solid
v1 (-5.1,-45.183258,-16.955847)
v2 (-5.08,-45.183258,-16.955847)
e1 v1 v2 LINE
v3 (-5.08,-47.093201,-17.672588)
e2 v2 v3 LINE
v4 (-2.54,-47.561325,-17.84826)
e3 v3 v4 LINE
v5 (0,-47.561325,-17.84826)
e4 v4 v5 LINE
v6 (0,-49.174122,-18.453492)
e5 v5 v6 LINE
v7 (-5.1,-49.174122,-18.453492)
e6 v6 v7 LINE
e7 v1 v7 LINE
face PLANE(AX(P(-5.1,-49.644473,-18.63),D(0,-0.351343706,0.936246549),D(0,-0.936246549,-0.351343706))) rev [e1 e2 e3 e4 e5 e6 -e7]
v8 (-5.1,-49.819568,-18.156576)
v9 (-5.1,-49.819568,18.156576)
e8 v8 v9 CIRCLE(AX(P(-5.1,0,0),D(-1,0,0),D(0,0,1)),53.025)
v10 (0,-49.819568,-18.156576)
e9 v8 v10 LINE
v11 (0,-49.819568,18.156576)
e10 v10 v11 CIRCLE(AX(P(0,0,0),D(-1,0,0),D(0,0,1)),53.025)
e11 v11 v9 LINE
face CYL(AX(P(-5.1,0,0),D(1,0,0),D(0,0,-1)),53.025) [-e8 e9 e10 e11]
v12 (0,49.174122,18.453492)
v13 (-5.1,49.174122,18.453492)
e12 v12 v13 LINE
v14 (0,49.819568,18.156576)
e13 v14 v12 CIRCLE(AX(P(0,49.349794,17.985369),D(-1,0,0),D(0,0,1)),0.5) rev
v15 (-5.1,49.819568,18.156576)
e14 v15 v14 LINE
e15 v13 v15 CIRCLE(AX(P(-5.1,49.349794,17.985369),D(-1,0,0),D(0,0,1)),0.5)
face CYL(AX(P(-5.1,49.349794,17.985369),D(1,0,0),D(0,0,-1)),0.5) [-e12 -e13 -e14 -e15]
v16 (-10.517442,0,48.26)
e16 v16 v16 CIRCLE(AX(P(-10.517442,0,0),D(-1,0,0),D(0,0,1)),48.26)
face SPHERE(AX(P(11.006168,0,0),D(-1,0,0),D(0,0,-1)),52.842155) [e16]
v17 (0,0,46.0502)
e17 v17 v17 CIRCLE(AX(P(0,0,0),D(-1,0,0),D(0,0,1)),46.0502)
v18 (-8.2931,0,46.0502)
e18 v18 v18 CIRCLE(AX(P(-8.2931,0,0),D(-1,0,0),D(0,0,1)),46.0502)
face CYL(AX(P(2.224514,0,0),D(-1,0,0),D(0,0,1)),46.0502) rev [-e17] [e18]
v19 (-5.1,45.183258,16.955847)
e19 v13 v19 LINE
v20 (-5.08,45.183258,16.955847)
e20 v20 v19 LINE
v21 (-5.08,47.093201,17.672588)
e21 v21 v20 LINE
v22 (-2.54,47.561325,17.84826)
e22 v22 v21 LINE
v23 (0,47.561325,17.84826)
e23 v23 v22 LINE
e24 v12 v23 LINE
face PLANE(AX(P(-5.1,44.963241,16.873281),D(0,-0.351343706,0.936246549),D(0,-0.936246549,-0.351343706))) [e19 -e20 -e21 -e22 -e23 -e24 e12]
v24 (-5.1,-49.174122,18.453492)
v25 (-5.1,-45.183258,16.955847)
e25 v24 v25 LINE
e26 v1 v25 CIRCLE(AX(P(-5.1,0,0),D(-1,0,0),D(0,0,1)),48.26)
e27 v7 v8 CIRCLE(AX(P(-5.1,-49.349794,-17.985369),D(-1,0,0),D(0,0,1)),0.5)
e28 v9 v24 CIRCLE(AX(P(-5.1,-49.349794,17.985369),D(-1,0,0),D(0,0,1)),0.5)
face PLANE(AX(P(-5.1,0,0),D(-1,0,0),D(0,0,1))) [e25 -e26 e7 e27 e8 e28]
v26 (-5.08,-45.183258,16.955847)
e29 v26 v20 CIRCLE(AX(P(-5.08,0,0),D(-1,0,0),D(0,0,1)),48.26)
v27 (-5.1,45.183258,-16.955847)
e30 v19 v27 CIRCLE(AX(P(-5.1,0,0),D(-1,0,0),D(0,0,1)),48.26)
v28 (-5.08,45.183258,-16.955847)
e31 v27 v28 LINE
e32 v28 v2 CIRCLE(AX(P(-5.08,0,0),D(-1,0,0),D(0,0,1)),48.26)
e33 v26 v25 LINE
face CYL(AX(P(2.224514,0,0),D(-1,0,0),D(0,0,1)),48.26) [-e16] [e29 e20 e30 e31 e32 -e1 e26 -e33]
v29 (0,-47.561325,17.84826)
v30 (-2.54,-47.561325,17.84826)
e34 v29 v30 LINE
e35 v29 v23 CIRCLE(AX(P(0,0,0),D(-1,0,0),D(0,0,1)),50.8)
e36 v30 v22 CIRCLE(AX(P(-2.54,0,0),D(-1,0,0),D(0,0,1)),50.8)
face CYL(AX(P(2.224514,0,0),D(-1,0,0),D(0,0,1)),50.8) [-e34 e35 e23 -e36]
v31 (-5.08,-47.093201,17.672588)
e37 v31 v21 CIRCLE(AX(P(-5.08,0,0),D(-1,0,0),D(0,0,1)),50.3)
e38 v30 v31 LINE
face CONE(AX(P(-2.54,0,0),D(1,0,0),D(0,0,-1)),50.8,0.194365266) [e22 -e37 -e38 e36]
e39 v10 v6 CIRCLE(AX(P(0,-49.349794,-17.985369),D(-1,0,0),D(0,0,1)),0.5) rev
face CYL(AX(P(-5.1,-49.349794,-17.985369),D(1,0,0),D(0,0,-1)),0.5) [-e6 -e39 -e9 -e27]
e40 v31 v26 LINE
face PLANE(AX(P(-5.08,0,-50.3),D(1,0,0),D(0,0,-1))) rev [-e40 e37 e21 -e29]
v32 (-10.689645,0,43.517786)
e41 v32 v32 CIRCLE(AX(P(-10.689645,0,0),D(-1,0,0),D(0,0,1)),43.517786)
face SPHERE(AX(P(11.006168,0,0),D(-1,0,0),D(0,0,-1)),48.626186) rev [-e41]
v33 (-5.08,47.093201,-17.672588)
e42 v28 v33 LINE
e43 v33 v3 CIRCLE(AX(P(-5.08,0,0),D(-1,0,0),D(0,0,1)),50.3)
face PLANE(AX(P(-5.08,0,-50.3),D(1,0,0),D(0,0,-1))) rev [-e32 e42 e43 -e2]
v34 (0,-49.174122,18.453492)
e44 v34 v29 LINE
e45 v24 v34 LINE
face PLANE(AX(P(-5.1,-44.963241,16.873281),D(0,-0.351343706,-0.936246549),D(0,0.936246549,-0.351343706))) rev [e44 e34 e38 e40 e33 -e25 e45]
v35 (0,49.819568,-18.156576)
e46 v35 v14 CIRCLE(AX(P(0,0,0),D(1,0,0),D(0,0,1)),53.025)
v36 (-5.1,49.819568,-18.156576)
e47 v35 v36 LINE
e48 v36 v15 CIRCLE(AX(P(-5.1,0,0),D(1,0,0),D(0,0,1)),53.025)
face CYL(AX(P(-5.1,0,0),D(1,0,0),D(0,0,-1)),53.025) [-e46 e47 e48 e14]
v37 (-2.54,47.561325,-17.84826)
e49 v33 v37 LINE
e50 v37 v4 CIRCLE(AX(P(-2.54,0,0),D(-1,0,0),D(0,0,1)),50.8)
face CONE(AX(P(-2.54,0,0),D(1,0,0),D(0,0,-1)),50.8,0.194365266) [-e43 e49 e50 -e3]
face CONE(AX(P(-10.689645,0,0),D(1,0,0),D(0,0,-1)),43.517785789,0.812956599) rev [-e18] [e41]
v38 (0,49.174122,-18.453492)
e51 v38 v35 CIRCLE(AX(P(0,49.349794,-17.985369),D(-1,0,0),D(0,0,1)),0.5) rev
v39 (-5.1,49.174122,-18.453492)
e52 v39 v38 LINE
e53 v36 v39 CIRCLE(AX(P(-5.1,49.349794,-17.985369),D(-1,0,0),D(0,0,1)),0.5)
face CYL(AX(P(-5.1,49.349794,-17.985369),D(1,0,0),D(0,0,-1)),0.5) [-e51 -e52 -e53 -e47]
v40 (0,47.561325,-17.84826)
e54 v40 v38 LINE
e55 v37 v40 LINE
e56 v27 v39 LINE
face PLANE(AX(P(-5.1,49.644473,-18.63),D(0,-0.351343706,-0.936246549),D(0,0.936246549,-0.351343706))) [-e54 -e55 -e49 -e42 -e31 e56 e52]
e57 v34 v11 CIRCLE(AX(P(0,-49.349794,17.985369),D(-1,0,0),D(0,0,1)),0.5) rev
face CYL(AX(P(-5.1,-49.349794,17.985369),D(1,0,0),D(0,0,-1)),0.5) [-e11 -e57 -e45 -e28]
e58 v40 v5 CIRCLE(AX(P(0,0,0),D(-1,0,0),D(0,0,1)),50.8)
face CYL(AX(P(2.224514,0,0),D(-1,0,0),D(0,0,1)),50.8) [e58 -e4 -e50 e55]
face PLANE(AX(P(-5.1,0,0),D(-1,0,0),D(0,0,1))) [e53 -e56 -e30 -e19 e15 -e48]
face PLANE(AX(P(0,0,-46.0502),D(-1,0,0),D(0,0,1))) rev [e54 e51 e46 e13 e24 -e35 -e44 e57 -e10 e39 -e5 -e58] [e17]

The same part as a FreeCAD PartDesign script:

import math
import FreeCAD as App
import Part
import Sketcher
Q = App.Units.Quantity


def edges_at(feature, points):
    """Names of the edges that pass closest to the given points."""
    edges = feature.Shape.Edges
    near = lambda p: min(range(len(edges)), key=lambda i: edges[i].distToShape(Part.Vertex(*p))[0])
    return sorted({f"Edge{near(p) + 1}" for p in points})

doc = App.newDocument("Part")
params = doc.addObject("Spreadsheet::Sheet", "Params")
for row, (alias, value) in enumerate([
    ("sketch1_width", "2.54 mm"),
    ("sketch1_height", "2.04 mm"),
    ("revolution_angle", "360 deg"),
    ("sketch2_length", "5 mm"),
    ("pad1_length", "5.1 mm"),
    ("fillet_radius", "0.5 mm"),
    ("fillet2_radius", "0.5 mm"),
], start=1):
    params.set(f"A{row}", alias)
    params.set(f"B{row}", "=" + value)
    params.setAlias(f"B{row}", alias)

body = doc.addObject("PartDesign::Body", "Body")

sketch1 = body.newObject("Sketcher::SketchObject", "Sketch")
sketch1.AttachmentSupport = (doc.getObject("XZ_Plane"), [""])
sketch1.MapMode = "FlatFace"
sketch1.addGeometry([
    Part.LineSegment(App.Vector(-8.3, -46.1, 0), App.Vector(0, -46.1, 0)),
    Part.LineSegment(App.Vector(0, -46.1, 0), App.Vector(0, -50.8, 0)),
    Part.LineSegment(App.Vector(0, -50.8, 0), App.Vector(-2.5, -50.8, 0)),
    Part.LineSegment(App.Vector(-2.5, -50.8, 0), App.Vector(-5.1, -50.3, 0)),
    Part.LineSegment(App.Vector(-5.1, -50.3, 0), App.Vector(-5.1, -48.3, 0)),
    Part.LineSegment(App.Vector(-5.1, -48.3, 0), App.Vector(-10.5, -48.3, 0)),
    Part.ArcOfCircle(Part.Circle(App.Vector(11, 0, 0), App.Vector(0, 0, 1), 52.8), math.radians(180), math.radians(246)),
    Part.LineSegment(App.Vector(-41.8, 0, 0), App.Vector(-37.6, 0, 0)),
    Part.ArcOfCircle(Part.Circle(App.Vector(11, 0, 0), App.Vector(0, 0, 1), 48.6), math.radians(180), math.radians(244)),
    Part.LineSegment(App.Vector(-10.7, -43.5, 0), App.Vector(-8.3, -46.1, 0)),
], False)
sketch1.addConstraint([
    Sketcher.Constraint("Coincident", 0, 2, 1, 1),
    Sketcher.Constraint("Coincident", 1, 2, 2, 1),
    Sketcher.Constraint("Coincident", 2, 2, 3, 1),
    Sketcher.Constraint("Coincident", 3, 2, 4, 1),
    Sketcher.Constraint("Coincident", 4, 2, 5, 1),
    Sketcher.Constraint("Coincident", 5, 2, 6, 2),
    Sketcher.Constraint("Coincident", 6, 1, 7, 1),
    Sketcher.Constraint("Coincident", 7, 2, 8, 1),
    Sketcher.Constraint("Coincident", 8, 2, 9, 1),
    Sketcher.Constraint("Coincident", 9, 2, 0, 1),
    Sketcher.Constraint("Horizontal", 0),
    Sketcher.Constraint("Vertical", 1),
    Sketcher.Constraint("Horizontal", 2),
    Sketcher.Constraint("Vertical", 4),
    Sketcher.Constraint("Horizontal", 5),
    Sketcher.Constraint("Horizontal", 7),
    Sketcher.Constraint("Coincident", 8, 3, 6, 3),
    Sketcher.Constraint("PointOnObject", 6, 3, -1),
    Sketcher.Constraint("PointOnObject", 0, 2, -2),
    Sketcher.Constraint("PointOnObject", 6, 1, -1),
    Sketcher.Constraint("DistanceX", 2, 2, 2, 1, Q("2.54 mm")),
    Sketcher.Constraint("DistanceY", 4, 1, 4, 2, Q("2.04 mm")),
    Sketcher.Constraint("DistanceY", 1, 2, -1, 1, Q("50.8 mm")),
    Sketcher.Constraint("DistanceY", 3, 2, -1, 1, Q("50.3 mm")),
    Sketcher.Constraint("DistanceX", 3, 2, -1, 1, Q("5.08 mm")),
    Sketcher.Constraint("DistanceX", 0, 1, 0, 2, Q("8.2931 mm")),
    Sketcher.Constraint("DistanceY", 1, 2, 1, 1, Q("4.7498 mm")),
    Sketcher.Constraint("Radius", 6, Q("52.842155 mm")),
    Sketcher.Constraint("Radius", 8, Q("48.626186 mm")),
    Sketcher.Constraint("DistanceX", 5, 2, 5, 1, Q("5.437442 mm")),
    Sketcher.Constraint("Distance", 9, Q("3.486625 mm")),
])
sketch1.setExpression("Constraints[20]", "Params.sketch1_width")
sketch1.setExpression("Constraints[21]", "Params.sketch1_height")
revolution = body.newObject("PartDesign::Revolution", "Revolution")
revolution.Profile = sketch1
revolution.ReferenceAxis = (sketch1, ["H_Axis"])
revolution.setExpression("Angle", "Params.revolution_angle")

sketch2 = body.newObject("Sketcher::SketchObject", "Sketch001")
sketch2.AttachmentSupport = (doc.getObject("YZ_Plane"), [""])
sketch2.MapMode = "FlatFace"
sketch2.addGeometry([
    Part.LineSegment(App.Vector(49.6, 18.6, 0), App.Vector(45, 16.9, 0)),
    Part.ArcOfCircle(Part.Circle(App.Vector(0, 0, 0), App.Vector(0, 0, 1), 48), math.radians(-21), math.radians(21)),
    Part.LineSegment(App.Vector(45, -16.9, 0), App.Vector(49.6, -18.6, 0)),
    Part.ArcOfCircle(Part.Circle(App.Vector(0, 0, 0), App.Vector(0, 0, 1), 53), math.radians(-21), math.radians(21)),
], False)
sketch2.addConstraint([
    Sketcher.Constraint("Coincident", 0, 2, 1, 2),
    Sketcher.Constraint("Coincident", 1, 1, 2, 1),
    Sketcher.Constraint("Coincident", 2, 2, 3, 1),
    Sketcher.Constraint("Coincident", 3, 2, 0, 1),
    Sketcher.Constraint("Coincident", 1, 3, -1, 1),
    Sketcher.Constraint("Coincident", 3, 3, -1, 1),
    Sketcher.Constraint("Vertical", 0, 2, 1, 1),
    Sketcher.Constraint("Vertical", 2, 2, 3, 2),
    Sketcher.Constraint("Distance", 0, Q("5 mm")),
    Sketcher.Constraint("Radius", 1, Q("48.025 mm")),
    Sketcher.Constraint("DistanceY", 2, 2, -1, 1, Q("18.63 mm")),
    Sketcher.Constraint("DistanceX", -1, 1, 0, 2, Q("44.963241 mm")),
])
sketch2.setExpression("Constraints[8]", "Params.sketch2_length")
pad1 = body.newObject("PartDesign::Pad", "Pad")
pad1.Profile = sketch2
pad1.setExpression("Length", "Params.pad1_length")
pad1.Reversed = True
doc.recompute()

fillet = body.newObject("PartDesign::Fillet", "Fillet")
fillet.Base = (pad1, edges_at(pad1, [(-2.55, 49.644, -18.63), (-2.55, 49.644, 18.63)]))
fillet.setExpression("Radius", "Params.fillet_radius")
doc.recompute()

mirrored = body.newObject("PartDesign::Mirrored", "Mirrored")
mirrored.Originals = [pad1]
mirrored.MirrorPlane = (doc.getObject("XZ_Plane"), [""])
body.Tip = mirrored
doc.recompute()

fillet2 = body.newObject("PartDesign::Fillet", "Fillet001")
fillet2.Base = (mirrored, edges_at(mirrored, [(-2.55, -49.644, -18.63), (-2.55, -49.644, 18.63)]))
fillet2.setExpression("Radius", "Params.fillet2_radius")

doc.recompute()
